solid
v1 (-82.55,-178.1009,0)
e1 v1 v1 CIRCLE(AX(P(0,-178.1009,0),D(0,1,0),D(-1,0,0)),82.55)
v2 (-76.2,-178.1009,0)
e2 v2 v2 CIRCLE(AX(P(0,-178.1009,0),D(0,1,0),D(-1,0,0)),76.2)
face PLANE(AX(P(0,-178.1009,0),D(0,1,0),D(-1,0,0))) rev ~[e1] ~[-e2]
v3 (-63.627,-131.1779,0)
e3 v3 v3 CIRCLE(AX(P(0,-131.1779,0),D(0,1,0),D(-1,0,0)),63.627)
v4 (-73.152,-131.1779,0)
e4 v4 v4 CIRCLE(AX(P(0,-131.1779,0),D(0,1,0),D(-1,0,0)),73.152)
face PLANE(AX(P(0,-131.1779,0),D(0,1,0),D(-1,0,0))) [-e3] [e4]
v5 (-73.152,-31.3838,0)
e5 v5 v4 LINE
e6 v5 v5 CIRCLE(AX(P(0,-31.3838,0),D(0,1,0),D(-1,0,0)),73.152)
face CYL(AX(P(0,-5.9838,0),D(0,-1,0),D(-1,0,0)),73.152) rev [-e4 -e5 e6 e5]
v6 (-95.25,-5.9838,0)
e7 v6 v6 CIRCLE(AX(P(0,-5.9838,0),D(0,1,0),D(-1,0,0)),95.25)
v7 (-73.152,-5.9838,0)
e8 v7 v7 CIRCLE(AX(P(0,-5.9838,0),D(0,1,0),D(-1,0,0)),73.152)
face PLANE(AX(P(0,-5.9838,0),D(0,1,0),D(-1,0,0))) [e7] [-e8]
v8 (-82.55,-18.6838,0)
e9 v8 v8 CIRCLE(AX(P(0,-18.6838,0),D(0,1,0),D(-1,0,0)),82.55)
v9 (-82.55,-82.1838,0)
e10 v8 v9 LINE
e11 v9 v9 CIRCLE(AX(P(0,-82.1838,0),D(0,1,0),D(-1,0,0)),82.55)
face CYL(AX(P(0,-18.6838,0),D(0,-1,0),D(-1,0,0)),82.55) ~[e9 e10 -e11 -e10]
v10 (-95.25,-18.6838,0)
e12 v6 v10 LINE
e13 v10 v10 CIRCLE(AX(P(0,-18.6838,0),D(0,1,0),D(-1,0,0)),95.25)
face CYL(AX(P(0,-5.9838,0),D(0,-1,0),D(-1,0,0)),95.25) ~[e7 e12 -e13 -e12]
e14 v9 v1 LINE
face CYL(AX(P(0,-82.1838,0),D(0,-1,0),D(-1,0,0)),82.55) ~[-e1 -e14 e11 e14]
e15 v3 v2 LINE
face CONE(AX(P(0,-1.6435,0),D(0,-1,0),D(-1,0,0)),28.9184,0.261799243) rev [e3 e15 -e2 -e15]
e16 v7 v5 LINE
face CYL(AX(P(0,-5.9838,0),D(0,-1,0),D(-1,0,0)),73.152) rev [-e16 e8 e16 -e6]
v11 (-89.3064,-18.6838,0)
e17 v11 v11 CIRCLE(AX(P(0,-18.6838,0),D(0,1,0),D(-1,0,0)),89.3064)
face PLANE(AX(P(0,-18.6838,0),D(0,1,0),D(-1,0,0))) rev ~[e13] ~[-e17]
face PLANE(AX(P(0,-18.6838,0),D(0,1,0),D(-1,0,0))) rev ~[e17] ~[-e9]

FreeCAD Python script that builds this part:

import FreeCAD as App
import Part
import Sketcher

V = App.Vector
Q = App.Units.Quantity


def add_polygon(sketch, points):
    """Adds a closed chain of lines whose ends are joined by coincident constraints."""
    first, n = sketch.GeometryCount, len(points)
    for a, b in zip(points, points[1:] + points[:1]):
        sketch.addGeometry(Part.LineSegment(App.Vector(*a, 0), App.Vector(*b, 0)), False)
    for i in range(n):
        sketch.addConstraint(Sketcher.Constraint("Coincident", first + i, 2, first + (i + 1) % n, 1))

doc = App.newDocument("Part")
body = doc.addObject("PartDesign::Body", "Body")

# Sketch on XY plane
sketch1 = doc.addObject("Sketcher::SketchObject", "Sketch")
body.addObject(sketch1)
sketch1.AttachmentSupport = (doc.XY_Plane, [""])
sketch1.MapMode = "FlatFace"
add_polygon(sketch1, [(-76.199991, -178.100902), (-63.627, -131.1779), (-73.152, -131.1779), (-73.152, -5.9838), (-95.25, -5.9838), (-95.25, -18.6838), (-82.55, -18.6838), (-82.55, -178.1009)])  # lines 0-7
sketch1.addConstraint([
    Sketcher.Constraint("Horizontal", 1),
    Sketcher.Constraint("Vertical", 2),
    Sketcher.Constraint("Horizontal", 3),
    Sketcher.Constraint("Vertical", 4),
    Sketcher.Constraint("Horizontal", 5),
    Sketcher.Constraint("Vertical", 6),
    Sketcher.Constraint("Horizontal", 7),
    Sketcher.Constraint("Equal", 5, 4),
    Sketcher.Constraint("DistanceX", 5, 1, 5, 2, Q("0.5 in")),
    Sketcher.Constraint("DistanceX", 7, 1, 7, 2, Q("0.25 in")),
    Sketcher.Constraint("DistanceX", 1, 2, 1, 1, Q("0.375 in")),
    Sketcher.Constraint("DistanceX", 3, 2, -1, 1, Q("3.75 in")),
    Sketcher.Constraint("Angle", 0, Q("75 deg")),
    Sketcher.Constraint("DistanceX", 3, 2, 3, 1, Q("0.87 in")),
    Sketcher.Constraint("DistanceY", 2, 1, 2, 2, Q("4.9289 in")),
    Sketcher.Constraint("DistanceY", 0, 2, -1, 1, Q("5.1644882 in")),
])
revolution = doc.addObject("PartDesign::Revolution", "Revolution")
body.addObject(revolution)
revolution.Profile = sketch1
revolution.ReferenceAxis = (sketch1, ["V_Axis"])
revolution.Angle = 360

doc.recompute()
